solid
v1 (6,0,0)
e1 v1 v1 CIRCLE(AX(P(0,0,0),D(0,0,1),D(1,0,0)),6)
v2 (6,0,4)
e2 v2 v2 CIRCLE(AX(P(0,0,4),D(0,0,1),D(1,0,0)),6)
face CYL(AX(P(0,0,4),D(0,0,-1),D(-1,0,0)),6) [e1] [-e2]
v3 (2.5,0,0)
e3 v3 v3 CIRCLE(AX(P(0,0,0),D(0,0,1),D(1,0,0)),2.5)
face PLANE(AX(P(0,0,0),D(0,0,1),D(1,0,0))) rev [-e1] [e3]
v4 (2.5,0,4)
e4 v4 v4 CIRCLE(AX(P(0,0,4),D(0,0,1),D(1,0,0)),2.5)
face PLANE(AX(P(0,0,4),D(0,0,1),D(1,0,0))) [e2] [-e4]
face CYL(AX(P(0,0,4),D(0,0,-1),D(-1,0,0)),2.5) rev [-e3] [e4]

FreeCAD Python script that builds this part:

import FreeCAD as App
import Part
import Sketcher
from FreeCAD import Vector
Q = App.Units.Quantity

doc = App.newDocument("Part")
body = doc.addObject("PartDesign::Body", "Body")

# Sketch on XY plane
sketch1 = body.newObject("Sketcher::SketchObject", "Sketch")
sketch1.AttachmentSupport = (doc.getObject("XY_Plane"), [""])
sketch1.MapMode = "FlatFace"
sketch1.addGeometry([
    Part.Circle(Vector(0, 0, 0), Vector(0, 0, 1), 6),
    Part.Circle(Vector(0, 0, 0), Vector(0, 0, 1), 2.5),
], False)
sketch1.addConstraint([
    Sketcher.Constraint("Coincident", 0, 3, -1, 1),
    Sketcher.Constraint("Coincident", 1, 3, -1, 1),
    Sketcher.Constraint("Diameter", 0, Q("12 mm")),
    Sketcher.Constraint("Diameter", 1, Q("5 mm")),
])
pad1 = body.newObject("PartDesign::Pad", "Pad")
pad1.Profile = sketch1
pad1.Length = 4

doc.recompute()
